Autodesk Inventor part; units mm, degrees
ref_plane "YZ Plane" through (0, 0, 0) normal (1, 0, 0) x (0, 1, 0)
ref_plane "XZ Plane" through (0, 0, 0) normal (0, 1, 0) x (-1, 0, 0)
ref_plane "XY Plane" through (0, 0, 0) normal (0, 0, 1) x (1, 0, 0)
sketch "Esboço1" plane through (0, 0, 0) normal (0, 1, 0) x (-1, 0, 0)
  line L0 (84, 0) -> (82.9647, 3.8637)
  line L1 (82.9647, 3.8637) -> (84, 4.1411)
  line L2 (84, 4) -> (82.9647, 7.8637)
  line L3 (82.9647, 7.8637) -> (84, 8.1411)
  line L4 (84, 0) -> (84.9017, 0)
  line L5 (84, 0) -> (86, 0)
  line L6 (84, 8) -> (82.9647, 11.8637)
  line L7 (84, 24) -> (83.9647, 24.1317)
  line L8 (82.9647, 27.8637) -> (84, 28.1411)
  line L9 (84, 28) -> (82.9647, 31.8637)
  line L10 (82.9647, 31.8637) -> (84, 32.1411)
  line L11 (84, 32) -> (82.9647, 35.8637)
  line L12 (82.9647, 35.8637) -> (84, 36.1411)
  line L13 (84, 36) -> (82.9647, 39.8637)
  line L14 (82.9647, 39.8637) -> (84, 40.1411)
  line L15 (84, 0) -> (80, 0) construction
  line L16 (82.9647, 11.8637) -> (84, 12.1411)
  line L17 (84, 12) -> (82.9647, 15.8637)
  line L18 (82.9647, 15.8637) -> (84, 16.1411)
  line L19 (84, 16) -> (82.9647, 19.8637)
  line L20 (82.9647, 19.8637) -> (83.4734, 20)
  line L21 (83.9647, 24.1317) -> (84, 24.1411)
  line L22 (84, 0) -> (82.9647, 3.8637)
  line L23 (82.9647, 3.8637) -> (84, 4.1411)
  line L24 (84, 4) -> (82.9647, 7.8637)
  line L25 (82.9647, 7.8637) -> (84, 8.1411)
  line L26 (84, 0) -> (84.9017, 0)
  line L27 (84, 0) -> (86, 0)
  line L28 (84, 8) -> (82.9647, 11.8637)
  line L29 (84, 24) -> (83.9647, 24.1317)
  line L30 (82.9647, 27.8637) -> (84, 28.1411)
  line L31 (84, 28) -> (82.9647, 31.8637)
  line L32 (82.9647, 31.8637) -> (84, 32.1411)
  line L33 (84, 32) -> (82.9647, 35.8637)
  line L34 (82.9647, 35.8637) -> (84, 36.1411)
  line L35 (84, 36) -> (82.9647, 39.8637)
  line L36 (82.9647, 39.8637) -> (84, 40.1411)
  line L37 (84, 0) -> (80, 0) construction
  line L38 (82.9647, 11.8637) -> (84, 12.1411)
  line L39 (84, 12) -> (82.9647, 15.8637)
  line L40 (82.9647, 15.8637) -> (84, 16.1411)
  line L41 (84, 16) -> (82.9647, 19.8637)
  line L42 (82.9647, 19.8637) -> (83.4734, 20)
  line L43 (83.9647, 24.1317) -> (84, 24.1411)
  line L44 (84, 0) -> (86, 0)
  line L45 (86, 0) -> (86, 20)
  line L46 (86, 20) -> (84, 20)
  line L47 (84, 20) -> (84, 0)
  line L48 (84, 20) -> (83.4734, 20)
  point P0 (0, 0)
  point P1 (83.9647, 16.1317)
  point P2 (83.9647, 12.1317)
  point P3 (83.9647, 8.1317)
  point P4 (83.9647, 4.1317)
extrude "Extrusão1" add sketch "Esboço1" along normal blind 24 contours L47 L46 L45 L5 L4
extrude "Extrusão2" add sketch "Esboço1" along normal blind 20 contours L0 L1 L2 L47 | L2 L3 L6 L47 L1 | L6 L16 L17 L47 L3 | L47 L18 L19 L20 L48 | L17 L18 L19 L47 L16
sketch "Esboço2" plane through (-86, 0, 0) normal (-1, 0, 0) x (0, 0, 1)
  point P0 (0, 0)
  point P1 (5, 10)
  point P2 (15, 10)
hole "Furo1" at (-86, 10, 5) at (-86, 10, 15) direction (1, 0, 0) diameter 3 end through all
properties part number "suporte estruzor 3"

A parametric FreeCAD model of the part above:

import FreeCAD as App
import Part
import Sketcher
Q = App.Units.Quantity


def add_polygon(sketch, points):
    """Adds a closed chain of lines whose ends are joined by coincident constraints."""
    first, n = sketch.GeometryCount, len(points)
    for a, b in zip(points, points[1:] + points[:1]):
        sketch.addGeometry(Part.LineSegment(App.Vector(*a, 0), App.Vector(*b, 0)), False)
    for i in range(n):
        sketch.addConstraint(Sketcher.Constraint("Coincident", first + i, 2, first + (i + 1) % n, 1))

doc = App.newDocument("Part")
body = doc.addObject("PartDesign::Body", "Body")

# Sketch on XZ plane
sketch1 = doc.addObject("Sketcher::SketchObject", "Sketch")
body.addObject(sketch1)
sketch1.AttachmentSupport = (doc.XZ_Plane, [""])
sketch1.MapMode = "FlatFace"
add_polygon(sketch1, [(-84, 20), (-84, 0), (-86, 0), (-86, 20)])  # lines 0-3
sketch1.addConstraint(Sketcher.Constraint("Vertical", 0))
sketch1.addConstraint(Sketcher.Constraint("Horizontal", 1))
sketch1.addConstraint(Sketcher.Constraint("Vertical", 2))
sketch1.addConstraint(Sketcher.Constraint("Horizontal", 3))
sketch1.addConstraint(Sketcher.Constraint("PointOnObject", 0, 2, -1))
sketch1.addConstraint(Sketcher.Constraint("DistanceX", 1, 2, 1, 1, Q("2 mm")))
sketch1.addConstraint(Sketcher.Constraint("DistanceY", 0, 2, 0, 1, Q("20 mm")))
sketch1.addConstraint(Sketcher.Constraint("DistanceX", 0, 2, -1, 1, Q("84 mm")))
pad1 = doc.addObject("PartDesign::Pad", "Pad")
body.addObject(pad1)
pad1.Profile = sketch1
pad1.Length = 24
pad1.Reversed = True

# Sketch on XZ plane
sketch2 = doc.addObject("Sketcher::SketchObject", "Sketch001")
body.addObject(sketch2)
sketch2.AttachmentSupport = (doc.XZ_Plane, [""])
sketch2.MapMode = "FlatFace"
add_polygon(sketch2, [(-82.9647, 3.8637), (-84, 0), (-84, 4), (-83.964724, 4.131648)])  # lines 0-3
add_polygon(sketch2, [(-82.9647, 7.8637), (-83.964724, 4.131648), (-84, 4.1411), (-84, 8), (-83.964724, 8.131648)])  # lines 4-8
add_polygon(sketch2, [(-82.9647, 11.8637), (-83.964724, 8.131648), (-84, 8.1411), (-84, 12), (-83.964724, 12.131648)])  # lines 9-13
add_polygon(sketch2, [(-84, 16.1411), (-84, 20), (-83.4734, 20), (-82.9647, 19.8637), (-83.964724, 16.131648)])  # lines 14-18
add_polygon(sketch2, [(-82.9647, 15.8637), (-83.964724, 12.131648), (-84, 12.1411), (-84, 16), (-83.964724, 16.131648)])  # lines 19-23
sketch2.addConstraint(Sketcher.Constraint("Vertical", 1))
sketch2.addConstraint(Sketcher.Constraint("Vertical", 6))
sketch2.addConstraint(Sketcher.Constraint("Vertical", 11))
sketch2.addConstraint(Sketcher.Constraint("Vertical", 14))
sketch2.addConstraint(Sketcher.Constraint("Horizontal", 15))
sketch2.addConstraint(Sketcher.Constraint("Vertical", 21))
sketch2.addConstraint(Sketcher.Constraint("Coincident", 4, 2, 2, 2))
sketch2.addConstraint(Sketcher.Constraint("Coincident", 9, 2, 7, 2))
sketch2.addConstraint(Sketcher.Constraint("Coincident", 19, 2, 12, 2))
sketch2.addConstraint(Sketcher.Constraint("Coincident", 22, 2, 17, 2))
sketch2.addConstraint(Sketcher.Constraint("PointOnObject", 0, 2, -1))
sketch2.addConstraint(Sketcher.Constraint("Parallel", 0, 2))
sketch2.addConstraint(Sketcher.Constraint("Perpendicular", 2, 3))
sketch2.addConstraint(Sketcher.Constraint("Perpendicular", 3, 4))
sketch2.addConstraint(Sketcher.Constraint("Perpendicular", 4, 5))
sketch2.addConstraint(Sketcher.Constraint("Perpendicular", 5, 7))
sketch2.addConstraint(Sketcher.Constraint("Perpendicular", 7, 8))
sketch2.addConstraint(Sketcher.Constraint("Perpendicular", 8, 9))
sketch2.addConstraint(Sketcher.Constraint("Perpendicular", 9, 10))
sketch2.addConstraint(Sketcher.Constraint("Perpendicular", 10, 12))
sketch2.addConstraint(Sketcher.Constraint("Perpendicular", 12, 13))
sketch2.addConstraint(Sketcher.Constraint("Parallel", 13, 16))
sketch2.addConstraint(Sketcher.Constraint("Perpendicular", 16, 17))
sketch2.addConstraint(Sketcher.Constraint("Perpendicular", 17, 18))
sketch2.addConstraint(Sketcher.Constraint("Perpendicular", 18, 19))
sketch2.addConstraint(Sketcher.Constraint("Perpendicular", 19, 20))
sketch2.addConstraint(Sketcher.Constraint("Perpendicular", 20, 22))
sketch2.addConstraint(Sketcher.Constraint("Perpendicular", 22, 23))
sketch2.addConstraint(Sketcher.Constraint("Vertical", 1, 2, 5, 2))
sketch2.addConstraint(Sketcher.Constraint("Vertical", 4, 2, 7, 2))
sketch2.addConstraint(Sketcher.Constraint("Vertical", 3, 2, 8, 2))
sketch2.addConstraint(Sketcher.Constraint("Vertical", 6, 2, 10, 2))
sketch2.addConstraint(Sketcher.Constraint("Vertical", 9, 2, 12, 2))
sketch2.addConstraint(Sketcher.Constraint("Vertical", 8, 2, 13, 2))
sketch2.addConstraint(Sketcher.Constraint("Vertical", 11, 2, 14, 2))
sketch2.addConstraint(Sketcher.Constraint("Vertical", 13, 2, 16, 2))
sketch2.addConstraint(Sketcher.Constraint("Vertical", 12, 2, 17, 2))
sketch2.addConstraint(Sketcher.Constraint("Vertical", 18, 2, 20, 2))
sketch2.addConstraint(Sketcher.Constraint("Vertical", 16, 2, 23, 2))
sketch2.addConstraint(Sketcher.Constraint("Equal", 11, 14))
sketch2.addConstraint(Sketcher.Constraint("DistanceY", 1, 1, 1, 2, Q("4 mm")))
sketch2.addConstraint(Sketcher.Constraint("Angle", 0, Q("-105.0003 deg")))
sketch2.addConstraint(Sketcher.Constraint("Distance", 0, Q("4 mm")))
sketch2.addConstraint(Sketcher.Constraint("DistanceX", 0, 2, -1, 1, Q("84 mm")))
pad2 = doc.addObject("PartDesign::Pad", "Pad001")
body.addObject(pad2)
pad2.Profile = sketch2
pad2.Length = 20
pad2.Reversed = True

# Sketch on YZ plane
sketch3 = doc.addObject("Sketcher::SketchObject", "Sketch002")
body.addObject(sketch3)
sketch3.AttachmentSupport = (doc.YZ_Plane, [""])
sketch3.MapMode = "FlatFace"
sketch3.AttachmentOffset = App.Placement(App.Vector(0, 0, -86), App.Rotation())
sketch3.addGeometry(Part.Circle(App.Vector(10, 5, 0), App.Vector(0, 0, 1), 1.5), False)
sketch3.addGeometry(Part.Circle(App.Vector(10, 15, 0), App.Vector(0, 0, 1), 1.5), False)
sketch3.addConstraint(Sketcher.Constraint("Equal", 0, 1))
sketch3.addConstraint(Sketcher.Constraint("Vertical", 0, 3, 1, 3))
sketch3.addConstraint(Sketcher.Constraint("Diameter", 0, Q("3 mm")))
sketch3.addConstraint(Sketcher.Constraint("DistanceX", -1, 1, 0, 3, Q("10 mm")))
sketch3.addConstraint(Sketcher.Constraint("DistanceY", -1, 1, 0, 3, Q("5 mm")))
sketch3.addConstraint(Sketcher.Constraint("DistanceY", -1, 1, 1, 3, Q("15 mm")))
doc.recompute()
hole = doc.addObject("PartDesign::Hole", "Hole")
body.addObject(hole)
hole.Profile = sketch3
hole.ThreadType = "None"
hole.Diameter = 3
hole.DepthType = "ThroughAll"
hole.Reversed = True

doc.recompute()
